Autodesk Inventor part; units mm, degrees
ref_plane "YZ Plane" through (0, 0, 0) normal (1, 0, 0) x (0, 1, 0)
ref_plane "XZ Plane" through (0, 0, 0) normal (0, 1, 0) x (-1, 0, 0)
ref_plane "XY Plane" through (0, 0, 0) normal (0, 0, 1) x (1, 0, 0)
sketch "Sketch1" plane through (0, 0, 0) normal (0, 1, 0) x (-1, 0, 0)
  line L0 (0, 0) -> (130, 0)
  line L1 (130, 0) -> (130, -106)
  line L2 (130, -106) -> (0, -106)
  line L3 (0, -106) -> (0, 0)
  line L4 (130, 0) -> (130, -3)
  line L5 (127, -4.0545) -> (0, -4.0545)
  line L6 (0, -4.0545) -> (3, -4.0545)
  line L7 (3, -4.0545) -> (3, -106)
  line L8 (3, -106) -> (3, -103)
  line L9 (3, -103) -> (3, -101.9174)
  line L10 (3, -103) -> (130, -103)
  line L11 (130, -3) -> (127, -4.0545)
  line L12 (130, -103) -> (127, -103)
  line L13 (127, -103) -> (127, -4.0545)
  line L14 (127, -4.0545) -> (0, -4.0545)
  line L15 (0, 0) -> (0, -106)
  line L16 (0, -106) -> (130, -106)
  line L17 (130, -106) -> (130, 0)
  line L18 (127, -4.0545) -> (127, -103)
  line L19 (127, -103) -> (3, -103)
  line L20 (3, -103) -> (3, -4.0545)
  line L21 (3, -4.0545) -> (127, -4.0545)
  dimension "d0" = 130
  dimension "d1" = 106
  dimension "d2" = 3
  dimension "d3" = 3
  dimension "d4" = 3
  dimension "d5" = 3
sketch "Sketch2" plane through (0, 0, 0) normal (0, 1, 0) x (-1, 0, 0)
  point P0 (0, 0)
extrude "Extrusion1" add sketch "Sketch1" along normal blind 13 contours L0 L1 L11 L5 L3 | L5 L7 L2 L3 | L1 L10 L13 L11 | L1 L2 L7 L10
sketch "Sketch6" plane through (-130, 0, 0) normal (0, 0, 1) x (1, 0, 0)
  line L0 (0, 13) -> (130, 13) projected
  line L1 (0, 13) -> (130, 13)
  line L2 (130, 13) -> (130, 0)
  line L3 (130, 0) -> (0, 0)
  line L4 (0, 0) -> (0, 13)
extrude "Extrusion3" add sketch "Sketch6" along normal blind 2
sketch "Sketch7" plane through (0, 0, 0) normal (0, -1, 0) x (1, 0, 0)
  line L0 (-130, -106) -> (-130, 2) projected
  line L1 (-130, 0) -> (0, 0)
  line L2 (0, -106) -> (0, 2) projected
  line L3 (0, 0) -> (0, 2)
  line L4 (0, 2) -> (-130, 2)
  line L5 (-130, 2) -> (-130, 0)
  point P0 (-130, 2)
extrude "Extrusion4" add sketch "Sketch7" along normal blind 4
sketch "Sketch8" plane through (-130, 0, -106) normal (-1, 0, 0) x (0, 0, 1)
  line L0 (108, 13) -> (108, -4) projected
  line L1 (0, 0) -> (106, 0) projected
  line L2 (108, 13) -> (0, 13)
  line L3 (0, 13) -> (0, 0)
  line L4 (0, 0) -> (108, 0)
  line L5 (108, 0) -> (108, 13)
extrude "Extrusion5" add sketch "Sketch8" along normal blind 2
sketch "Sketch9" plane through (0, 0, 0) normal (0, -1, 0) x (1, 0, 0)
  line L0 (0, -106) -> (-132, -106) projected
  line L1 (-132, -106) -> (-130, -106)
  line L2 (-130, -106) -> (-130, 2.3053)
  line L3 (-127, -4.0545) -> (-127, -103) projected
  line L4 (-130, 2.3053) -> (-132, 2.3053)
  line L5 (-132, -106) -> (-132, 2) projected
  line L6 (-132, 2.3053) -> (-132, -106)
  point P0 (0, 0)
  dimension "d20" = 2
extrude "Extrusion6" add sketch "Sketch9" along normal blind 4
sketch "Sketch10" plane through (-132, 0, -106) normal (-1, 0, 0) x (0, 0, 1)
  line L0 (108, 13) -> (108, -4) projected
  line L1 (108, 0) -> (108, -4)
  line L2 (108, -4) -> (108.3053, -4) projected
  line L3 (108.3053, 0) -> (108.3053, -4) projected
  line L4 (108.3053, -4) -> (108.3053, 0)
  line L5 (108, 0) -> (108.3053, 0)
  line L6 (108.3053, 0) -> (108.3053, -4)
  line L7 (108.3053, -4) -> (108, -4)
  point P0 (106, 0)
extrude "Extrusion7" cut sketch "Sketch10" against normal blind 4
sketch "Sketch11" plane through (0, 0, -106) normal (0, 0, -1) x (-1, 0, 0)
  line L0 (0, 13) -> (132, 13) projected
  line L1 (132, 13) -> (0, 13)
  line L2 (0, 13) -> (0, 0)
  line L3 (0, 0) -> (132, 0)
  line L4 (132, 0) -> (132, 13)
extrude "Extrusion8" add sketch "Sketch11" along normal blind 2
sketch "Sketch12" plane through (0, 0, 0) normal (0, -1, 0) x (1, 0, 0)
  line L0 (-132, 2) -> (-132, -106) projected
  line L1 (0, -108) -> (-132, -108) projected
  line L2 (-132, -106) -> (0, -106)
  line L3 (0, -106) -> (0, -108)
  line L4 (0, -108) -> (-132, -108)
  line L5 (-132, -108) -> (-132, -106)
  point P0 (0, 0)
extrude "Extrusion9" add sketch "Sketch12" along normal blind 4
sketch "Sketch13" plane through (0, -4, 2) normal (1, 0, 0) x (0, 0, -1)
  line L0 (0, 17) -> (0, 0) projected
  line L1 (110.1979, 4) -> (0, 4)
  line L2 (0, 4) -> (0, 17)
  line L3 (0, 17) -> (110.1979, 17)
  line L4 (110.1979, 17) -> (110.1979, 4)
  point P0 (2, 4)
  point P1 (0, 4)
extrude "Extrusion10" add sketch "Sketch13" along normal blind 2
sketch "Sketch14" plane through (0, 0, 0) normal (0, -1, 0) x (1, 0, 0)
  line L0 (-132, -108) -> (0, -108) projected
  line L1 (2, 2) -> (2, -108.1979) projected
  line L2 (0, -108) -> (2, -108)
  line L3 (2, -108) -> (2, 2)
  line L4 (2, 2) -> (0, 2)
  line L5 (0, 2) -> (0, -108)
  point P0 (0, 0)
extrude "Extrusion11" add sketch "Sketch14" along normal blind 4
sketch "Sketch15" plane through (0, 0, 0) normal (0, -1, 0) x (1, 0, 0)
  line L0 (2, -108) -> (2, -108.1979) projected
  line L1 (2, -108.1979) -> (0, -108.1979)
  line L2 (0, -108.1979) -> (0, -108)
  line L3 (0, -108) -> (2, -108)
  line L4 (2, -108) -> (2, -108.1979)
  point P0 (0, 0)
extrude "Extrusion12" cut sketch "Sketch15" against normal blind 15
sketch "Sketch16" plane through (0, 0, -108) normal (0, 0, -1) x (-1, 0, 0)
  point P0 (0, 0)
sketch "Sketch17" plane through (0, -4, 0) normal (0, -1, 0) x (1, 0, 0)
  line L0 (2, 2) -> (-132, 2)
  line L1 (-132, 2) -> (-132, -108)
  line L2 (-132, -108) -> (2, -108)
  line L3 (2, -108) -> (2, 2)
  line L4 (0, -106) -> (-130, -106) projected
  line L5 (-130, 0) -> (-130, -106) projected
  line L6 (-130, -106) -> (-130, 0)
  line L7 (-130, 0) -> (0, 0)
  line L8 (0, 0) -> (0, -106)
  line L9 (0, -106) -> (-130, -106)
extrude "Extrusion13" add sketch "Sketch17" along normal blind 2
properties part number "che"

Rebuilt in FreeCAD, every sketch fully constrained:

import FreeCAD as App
import Part
import Sketcher

V = App.Vector
Q = App.Units.Quantity


def add_polygon(sketch, points):
    """Adds a closed chain of lines whose ends are joined by coincident constraints."""
    first, n = sketch.GeometryCount, len(points)
    for a, b in zip(points, points[1:] + points[:1]):
        sketch.addGeometry(Part.LineSegment(App.Vector(*a, 0), App.Vector(*b, 0)), False)
    for i in range(n):
        sketch.addConstraint(Sketcher.Constraint("Coincident", first + i, 2, first + (i + 1) % n, 1))

doc = App.newDocument("Part")
body = doc.addObject("PartDesign::Body", "Body")

# Sketch on XZ plane
sketch1 = doc.addObject("Sketcher::SketchObject", "Sketch")
body.addObject(sketch1)
sketch1.AttachmentSupport = (doc.XZ_Plane, [""])
sketch1.MapMode = "FlatFace"
add_polygon(sketch1, [(-130, 0), (0, 0), (0, -106), (-130, -106)])  # lines 0-3
add_polygon(sketch1, [(-3, -4), (-127, -4), (-127, -103), (-3, -103)])  # lines 4-7
sketch1.addConstraint([
    Sketcher.Constraint("Horizontal", 0),
    Sketcher.Constraint("Vertical", 1),
    Sketcher.Constraint("Horizontal", 2),
    Sketcher.Constraint("Vertical", 3),
    Sketcher.Constraint("Horizontal", 4),
    Sketcher.Constraint("Vertical", 5),
    Sketcher.Constraint("Horizontal", 6),
    Sketcher.Constraint("Vertical", 7),
    Sketcher.Constraint("Coincident", 0, 2, -1, 1),
    Sketcher.Constraint("DistanceX", 0, 1, 0, 2, Q("130 mm")),
    Sketcher.Constraint("DistanceY", 1, 2, 1, 1, Q("106 mm")),
    Sketcher.Constraint("DistanceX", 6, 2, -1, 1, Q("3 mm")),
    Sketcher.Constraint("DistanceX", 3, 2, 4, 2, Q("3 mm")),
    Sketcher.Constraint("DistanceY", 2, 2, 5, 2, Q("3 mm")),
    Sketcher.Constraint("DistanceY", 5, 2, 5, 1, Q("98.9455 mm")),
])
pad1 = doc.addObject("PartDesign::Pad", "Pad")
body.addObject(pad1)
pad1.Profile = sketch1
pad1.Length = 13
pad1.Reversed = True

# Sketch on XY plane
sketch2 = doc.addObject("Sketcher::SketchObject", "Sketch001")
body.addObject(sketch2)
sketch2.AttachmentSupport = (doc.XY_Plane, [""])
sketch2.MapMode = "FlatFace"
add_polygon(sketch2, [(0, 13), (-130, 13), (-130, 0), (0, 0)])  # lines 0-3
sketch2.addConstraint([
    Sketcher.Constraint("Horizontal", 0),
    Sketcher.Constraint("Vertical", 1),
    Sketcher.Constraint("Horizontal", 2),
    Sketcher.Constraint("Vertical", 3),
    Sketcher.Constraint("Coincident", 2, 2, -1, 1),
    Sketcher.Constraint("DistanceX", 0, 2, 0, 1, Q("130 mm")),
    Sketcher.Constraint("DistanceY", 1, 2, 1, 1, Q("13 mm")),
])
pad2 = doc.addObject("PartDesign::Pad", "Pad001")
body.addObject(pad2)
pad2.Profile = sketch2
pad2.Length = 2

# Sketch on XZ plane
sketch3 = doc.addObject("Sketcher::SketchObject", "Sketch002")
body.addObject(sketch3)
sketch3.AttachmentSupport = (doc.XZ_Plane, [""])
sketch3.MapMode = "FlatFace"
add_polygon(sketch3, [(-130, 2), (-130, 0), (0, 0), (0, 2)])  # lines 0-3
sketch3.addConstraint([
    Sketcher.Constraint("Vertical", 0),
    Sketcher.Constraint("Horizontal", 1),
    Sketcher.Constraint("Vertical", 2),
    Sketcher.Constraint("Horizontal", 3),
    Sketcher.Constraint("Coincident", 1, 2, -1, 1),
    Sketcher.Constraint("DistanceX", 1, 1, 1, 2, Q("130 mm")),
    Sketcher.Constraint("DistanceY", 0, 2, 0, 1, Q("2 mm")),
])
pad3 = doc.addObject("PartDesign::Pad", "Pad002")
body.addObject(pad3)
pad3.Profile = sketch3
pad3.Length = 4

# Sketch on YZ plane
sketch4 = doc.addObject("Sketcher::SketchObject", "Sketch003")
body.addObject(sketch4)
sketch4.AttachmentSupport = (doc.YZ_Plane, [""])
sketch4.MapMode = "FlatFace"
sketch4.AttachmentOffset = App.Placement(V(0, 0, -130), App.Rotation())
add_polygon(sketch4, [(0, 2), (13, 2), (13, -106), (0, -106)])  # lines 0-3
sketch4.addConstraint([
    Sketcher.Constraint("Horizontal", 0),
    Sketcher.Constraint("Vertical", 1),
    Sketcher.Constraint("Horizontal", 2),
    Sketcher.Constraint("Vertical", 3),
    Sketcher.Constraint("PointOnObject", 2, 2, -2),
    Sketcher.Constraint("DistanceX", 0, 1, 0, 2, Q("13 mm")),
    Sketcher.Constraint("DistanceY", 1, 2, 1, 1, Q("108 mm")),
    Sketcher.Constraint("DistanceY", -1, 1, 0, 2, Q("2 mm")),
])
pad4 = doc.addObject("PartDesign::Pad", "Pad003")
body.addObject(pad4)
pad4.Profile = sketch4
pad4.Length = 2
pad4.Reversed = True

# Sketch on XZ plane
sketch5 = doc.addObject("Sketcher::SketchObject", "Sketch004")
body.addObject(sketch5)
sketch5.AttachmentSupport = (doc.XZ_Plane, [""])
sketch5.MapMode = "FlatFace"
add_polygon(sketch5, [(-132, -106), (-130, -106), (-130, 2.3), (-132, 2.3)])  # lines 0-3
sketch5.addConstraint([
    Sketcher.Constraint("Horizontal", 0),
    Sketcher.Constraint("Vertical", 1),
    Sketcher.Constraint("Horizontal", 2),
    Sketcher.Constraint("Vertical", 3),
    Sketcher.Constraint("DistanceX", 0, 1, 0, 2, Q("2 mm")),
    Sketcher.Constraint("DistanceX", 0, 2, -1, 1, Q("130 mm")),
    Sketcher.Constraint("DistanceY", 0, 2, -1, 1, Q("106 mm")),
    Sketcher.Constraint("DistanceY", 1, 1, 1, 2, Q("108.3053 mm")),
])
pad5 = doc.addObject("PartDesign::Pad", "Pad004")
body.addObject(pad5)
pad5.Profile = sketch5
pad5.Length = 4

# Sketch on YZ plane
sketch6 = doc.addObject("Sketcher::SketchObject", "Sketch005")
body.addObject(sketch6)
sketch6.AttachmentSupport = (doc.YZ_Plane, [""])
sketch6.MapMode = "FlatFace"
sketch6.AttachmentOffset = App.Placement(V(0, 0, -132), App.Rotation())
add_polygon(sketch6, [(0, 2.31), (0, 2), (-4, 2), (-4, 2.31)])  # lines 0-3
sketch6.addConstraint([
    Sketcher.Constraint("Vertical", 0),
    Sketcher.Constraint("Horizontal", 1),
    Sketcher.Constraint("Vertical", 2),
    Sketcher.Constraint("Horizontal", 3),
    Sketcher.Constraint("PointOnObject", 0, 2, -2),
    Sketcher.Constraint("DistanceX", 1, 2, 1, 1, Q("4 mm")),
    Sketcher.Constraint("DistanceY", -1, 1, 0, 2, Q("2 mm")),
    Sketcher.Constraint("DistanceY", 0, 2, 0, 1, Q("0.3053 mm")),
])
pocket1 = doc.addObject("PartDesign::Pocket", "Pocket")
body.addObject(pocket1)
pocket1.Profile = sketch6
pocket1.Length = 4
pocket1.Reversed = True

# Sketch on XY plane
sketch7 = doc.addObject("Sketcher::SketchObject", "Sketch006")
body.addObject(sketch7)
sketch7.AttachmentSupport = (doc.XY_Plane, [""])
sketch7.MapMode = "FlatFace"
sketch7.AttachmentOffset = App.Placement(V(0, 0, -106), App.Rotation())
add_polygon(sketch7, [(-132, 13), (0, 13), (0, 0), (-132, 0)])  # lines 0-3
sketch7.addConstraint([
    Sketcher.Constraint("Horizontal", 0),
    Sketcher.Constraint("Vertical", 1),
    Sketcher.Constraint("Horizontal", 2),
    Sketcher.Constraint("Vertical", 3),
    Sketcher.Constraint("Coincident", 1, 2, -1, 1),
    Sketcher.Constraint("DistanceX", 0, 1, 0, 2, Q("132 mm")),
    Sketcher.Constraint("DistanceY", 1, 2, 1, 1, Q("13 mm")),
])
pad6 = doc.addObject("PartDesign::Pad", "Pad005")
body.addObject(pad6)
pad6.Profile = sketch7
pad6.Length = 2
pad6.Reversed = True

# Sketch on XZ plane
sketch8 = doc.addObject("Sketcher::SketchObject", "Sketch007")
body.addObject(sketch8)
sketch8.AttachmentSupport = (doc.XZ_Plane, [""])
sketch8.MapMode = "FlatFace"
add_polygon(sketch8, [(-132, -108), (0, -108), (0, -106), (-132, -106)])  # lines 0-3
sketch8.addConstraint([
    Sketcher.Constraint("Horizontal", 0),
    Sketcher.Constraint("Vertical", 1),
    Sketcher.Constraint("Horizontal", 2),
    Sketcher.Constraint("Vertical", 3),
    Sketcher.Constraint("PointOnObject", 0, 2, -2),
    Sketcher.Constraint("DistanceX", 0, 1, 0, 2, Q("132 mm")),
    Sketcher.Constraint("DistanceY", 1, 1, 1, 2, Q("2 mm")),
    Sketcher.Constraint("DistanceY", 0, 2, -1, 1, Q("108 mm")),
])
pad7 = doc.addObject("PartDesign::Pad", "Pad006")
body.addObject(pad7)
pad7.Profile = sketch8
pad7.Length = 4

# Sketch on YZ plane
sketch9 = doc.addObject("Sketcher::SketchObject", "Sketch008")
body.addObject(sketch9)
sketch9.AttachmentSupport = (doc.YZ_Plane, [""])
sketch9.MapMode = "FlatFace"
add_polygon(sketch9, [(13, -108), (13, 2), (0, 2), (0, -108)])  # lines 0-3
sketch9.addConstraint([
    Sketcher.Constraint("Vertical", 0),
    Sketcher.Constraint("Horizontal", 1),
    Sketcher.Constraint("Vertical", 2),
    Sketcher.Constraint("Horizontal", 3),
    Sketcher.Constraint("PointOnObject", 1, 2, -2),
    Sketcher.Constraint("DistanceX", 1, 2, 1, 1, Q("13 mm")),
    Sketcher.Constraint("DistanceY", -1, 1, 0, 2, Q("2 mm")),
    Sketcher.Constraint("DistanceY", 0, 1, 0, 2, Q("110.198 mm")),
])
pad8 = doc.addObject("PartDesign::Pad", "Pad007")
body.addObject(pad8)
pad8.Profile = sketch9
pad8.Length = 2

# Sketch on XZ plane
sketch10 = doc.addObject("Sketcher::SketchObject", "Sketch009")
body.addObject(sketch10)
sketch10.AttachmentSupport = (doc.XZ_Plane, [""])
sketch10.MapMode = "FlatFace"
add_polygon(sketch10, [(2, -108), (2, 2), (0, 2), (0, -108)])  # lines 0-3
sketch10.addConstraint([
    Sketcher.Constraint("Vertical", 0),
    Sketcher.Constraint("Horizontal", 1),
    Sketcher.Constraint("Vertical", 2),
    Sketcher.Constraint("Horizontal", 3),
    Sketcher.Constraint("PointOnObject", 1, 2, -2),
    Sketcher.Constraint("DistanceX", 1, 2, 1, 1, Q("2 mm")),
    Sketcher.Constraint("DistanceY", 0, 1, 0, 2, Q("110 mm")),
    Sketcher.Constraint("DistanceY", -1, 1, 0, 2, Q("2 mm")),
])
pad9 = doc.addObject("PartDesign::Pad", "Pad008")
body.addObject(pad9)
pad9.Profile = sketch10
pad9.Length = 4

# Sketch on XZ plane
sketch11 = doc.addObject("Sketcher::SketchObject", "Sketch010")
body.addObject(sketch11)
sketch11.AttachmentSupport = (doc.XZ_Plane, [""])
sketch11.MapMode = "FlatFace"
add_polygon(sketch11, [(2, -108.2), (2, -108), (0, -108), (0, -108.2)])  # lines 0-3
sketch11.addConstraint([
    Sketcher.Constraint("Vertical", 0),
    Sketcher.Constraint("Horizontal", 1),
    Sketcher.Constraint("Vertical", 2),
    Sketcher.Constraint("Horizontal", 3),
    Sketcher.Constraint("PointOnObject", 1, 2, -2),
    Sketcher.Constraint("DistanceX", 1, 2, 1, 1, Q("2 mm")),
    Sketcher.Constraint("DistanceY", 0, 2, -1, 1, Q("108 mm")),
    Sketcher.Constraint("DistanceY", 0, 1, 0, 2, Q("0.198 mm")),
])
pocket2 = doc.addObject("PartDesign::Pocket", "Pocket001")
body.addObject(pocket2)
pocket2.Profile = sketch11
pocket2.Length = 15

# Sketch on XZ plane
sketch12 = doc.addObject("Sketcher::SketchObject", "Sketch011")
body.addObject(sketch12)
sketch12.AttachmentSupport = (doc.XZ_Plane, [""])
sketch12.MapMode = "FlatFace"
sketch12.AttachmentOffset = App.Placement(V(0, 0, 4), App.Rotation())
add_polygon(sketch12, [(2, -108), (2, 2), (-132, 2), (-132, -108)])  # lines 0-3
add_polygon(sketch12, [(0, 0), (0, -106), (-130, -106), (-130, 0)])  # lines 4-7
sketch12.addConstraint([
    Sketcher.Constraint("Vertical", 0),
    Sketcher.Constraint("Horizontal", 1),
    Sketcher.Constraint("Vertical", 2),
    Sketcher.Constraint("Horizontal", 3),
    Sketcher.Constraint("Vertical", 4),
    Sketcher.Constraint("Horizontal", 5),
    Sketcher.Constraint("Vertical", 6),
    Sketcher.Constraint("Horizontal", 7),
    Sketcher.Constraint("Coincident", 7, 2, -1, 1),
    Sketcher.Constraint("DistanceX", 1, 2, 1, 1, Q("134 mm")),
    Sketcher.Constraint("DistanceX", 5, 2, 5, 1, Q("130 mm")),
    Sketcher.Constraint("DistanceY", 0, 1, 0, 2, Q("110 mm")),
    Sketcher.Constraint("DistanceY", 4, 2, 4, 1, Q("106 mm")),
    Sketcher.Constraint("DistanceX", -1, 1, 0, 2, Q("2 mm")),
    Sketcher.Constraint("DistanceY", -1, 1, 0, 2, Q("2 mm")),
])
pad10 = doc.addObject("PartDesign::Pad", "Pad009")
body.addObject(pad10)
pad10.Profile = sketch12
pad10.Length = 2

doc.recompute()
